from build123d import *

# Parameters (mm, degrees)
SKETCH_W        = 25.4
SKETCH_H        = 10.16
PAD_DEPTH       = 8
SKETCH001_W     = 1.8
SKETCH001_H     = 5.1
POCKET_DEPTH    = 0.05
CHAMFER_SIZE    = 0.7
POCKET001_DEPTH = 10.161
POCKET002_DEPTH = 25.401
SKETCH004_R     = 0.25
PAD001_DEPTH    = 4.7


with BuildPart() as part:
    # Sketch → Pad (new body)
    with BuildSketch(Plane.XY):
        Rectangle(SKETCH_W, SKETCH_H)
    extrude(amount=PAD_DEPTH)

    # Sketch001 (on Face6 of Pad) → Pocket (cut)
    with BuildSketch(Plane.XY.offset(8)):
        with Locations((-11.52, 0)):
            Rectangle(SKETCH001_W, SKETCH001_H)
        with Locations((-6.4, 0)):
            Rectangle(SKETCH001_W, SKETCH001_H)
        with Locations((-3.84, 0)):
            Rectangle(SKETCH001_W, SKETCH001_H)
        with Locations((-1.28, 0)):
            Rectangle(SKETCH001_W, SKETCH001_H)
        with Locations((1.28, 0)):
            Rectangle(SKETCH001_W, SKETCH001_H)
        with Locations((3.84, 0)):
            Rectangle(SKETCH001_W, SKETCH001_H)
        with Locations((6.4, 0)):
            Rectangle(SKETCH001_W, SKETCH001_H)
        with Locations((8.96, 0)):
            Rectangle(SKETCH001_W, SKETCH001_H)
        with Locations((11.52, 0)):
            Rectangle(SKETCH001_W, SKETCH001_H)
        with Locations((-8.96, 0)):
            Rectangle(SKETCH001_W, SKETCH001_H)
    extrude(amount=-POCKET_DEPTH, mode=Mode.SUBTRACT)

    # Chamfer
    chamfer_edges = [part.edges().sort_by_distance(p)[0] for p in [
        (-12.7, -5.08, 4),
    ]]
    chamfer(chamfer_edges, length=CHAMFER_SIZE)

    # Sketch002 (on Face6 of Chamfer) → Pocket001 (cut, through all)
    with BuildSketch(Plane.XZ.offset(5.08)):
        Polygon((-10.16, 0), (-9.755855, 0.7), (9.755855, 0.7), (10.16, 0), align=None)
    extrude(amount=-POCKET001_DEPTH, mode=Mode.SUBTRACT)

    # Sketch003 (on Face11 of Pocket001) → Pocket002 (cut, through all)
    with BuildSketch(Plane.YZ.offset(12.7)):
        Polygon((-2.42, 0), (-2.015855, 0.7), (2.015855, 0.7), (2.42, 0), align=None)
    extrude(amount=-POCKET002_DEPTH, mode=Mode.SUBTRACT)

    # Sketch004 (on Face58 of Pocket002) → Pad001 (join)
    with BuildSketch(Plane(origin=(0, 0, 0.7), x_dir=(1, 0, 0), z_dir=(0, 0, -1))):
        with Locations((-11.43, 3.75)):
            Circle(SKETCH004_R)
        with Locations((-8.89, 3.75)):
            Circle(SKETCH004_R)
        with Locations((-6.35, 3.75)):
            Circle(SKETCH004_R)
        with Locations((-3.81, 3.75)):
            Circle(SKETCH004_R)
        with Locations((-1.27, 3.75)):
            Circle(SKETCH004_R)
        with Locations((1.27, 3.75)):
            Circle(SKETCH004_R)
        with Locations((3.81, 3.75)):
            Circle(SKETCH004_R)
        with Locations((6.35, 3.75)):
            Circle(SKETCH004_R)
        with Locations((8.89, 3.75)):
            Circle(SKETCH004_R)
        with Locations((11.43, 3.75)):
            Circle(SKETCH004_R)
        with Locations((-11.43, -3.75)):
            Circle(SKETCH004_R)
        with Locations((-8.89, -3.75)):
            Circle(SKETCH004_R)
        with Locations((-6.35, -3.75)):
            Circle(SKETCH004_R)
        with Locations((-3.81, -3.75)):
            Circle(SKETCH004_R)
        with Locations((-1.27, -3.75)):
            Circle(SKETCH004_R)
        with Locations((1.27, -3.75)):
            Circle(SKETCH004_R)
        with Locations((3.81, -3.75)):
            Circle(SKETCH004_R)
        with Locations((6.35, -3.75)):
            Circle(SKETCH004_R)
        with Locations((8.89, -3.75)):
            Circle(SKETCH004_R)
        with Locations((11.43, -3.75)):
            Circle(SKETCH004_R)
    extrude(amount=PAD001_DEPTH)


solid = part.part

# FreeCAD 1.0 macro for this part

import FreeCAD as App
import Part
import Sketcher

V = App.Vector
Q = App.Units.Quantity


def edges_at(feature, points):
    """Names of the edges that pass closest to the given points."""
    edges = feature.Shape.Edges
    near = lambda p: min(range(len(edges)), key=lambda i: edges[i].distToShape(Part.Vertex(*p))[0])
    return sorted({f"Edge{near(p) + 1}" for p in points})


def add_polygon(sketch, points):
    """Adds a closed chain of lines whose ends are joined by coincident constraints."""
    first, n = sketch.GeometryCount, len(points)
    for a, b in zip(points, points[1:] + points[:1]):
        sketch.addGeometry(Part.LineSegment(App.Vector(*a, 0), App.Vector(*b, 0)), False)
    for i in range(n):
        sketch.addConstraint(Sketcher.Constraint("Coincident", first + i, 2, first + (i + 1) % n, 1))

doc = App.newDocument("Part")
params = doc.addObject("Spreadsheet::Sheet", "Params")
for row, (alias, value) in enumerate([
    ("sketch1_width", "25.4 mm"),
    ("sketch1_height", "10.16 mm"),
    ("pad1_length", "8 mm"),
    ("sketch2_width", "1.8 mm"),
    ("sketch2_height", "5.1 mm"),
    ("pocket1_length", "0.05 mm"),
    ("chamfer_size", "0.7 mm"),
    ("sketch3_width", "20.32 mm"),
    ("sketch4_width", "4.84 mm"),
    ("sketch5_diameter", "0.5 mm"),
    ("pad2_length", "4.7 mm"),
], start=1):
    params.set(f"A{row}", alias)
    params.set(f"B{row}", "=" + value)
    params.setAlias(f"B{row}", alias)

body = doc.addObject("PartDesign::Body", "Body")

# Sketch on XY plane
sketch1 = doc.addObject("Sketcher::SketchObject", "Sketch")
body.addObject(sketch1)
sketch1.AttachmentSupport = (doc.XY_Plane, [""])
sketch1.MapMode = "FlatFace"
add_polygon(sketch1, [(-13, 5), (-13, -5), (13, -5), (13, 5)])  # lines 0-3
sketch1.addConstraint(Sketcher.Constraint("Vertical", 0))
sketch1.addConstraint(Sketcher.Constraint("Horizontal", 1))
sketch1.addConstraint(Sketcher.Constraint("Vertical", 2))
sketch1.addConstraint(Sketcher.Constraint("Horizontal", 3))
sketch1.addConstraint(Sketcher.Constraint("Symmetric", 0, 2, 2, 2, -1, 1))
sketch1.addConstraint(Sketcher.Constraint("DistanceX", 1, 1, 1, 2, 25.4))
sketch1.addConstraint(Sketcher.Constraint("DistanceY", 0, 2, 0, 1, 10.16))
sketch1.setExpression("Constraints[9]", "Params.sketch1_width")
sketch1.setExpression("Constraints[10]", "Params.sketch1_height")
pad1 = doc.addObject("PartDesign::Pad", "Pad")
body.addObject(pad1)
pad1.Profile = sketch1
pad1.setExpression("Length", "Params.pad1_length")

# Sketch on XY plane
sketch2 = doc.addObject("Sketcher::SketchObject", "Sketch001")
body.addObject(sketch2)
sketch2.AttachmentSupport = (doc.XY_Plane, [""])
sketch2.MapMode = "FlatFace"
sketch2.AttachmentOffset = App.Placement(V(0, 0, 8), App.Rotation())
add_polygon(sketch2, [(-12.4, 2.5), (-12.4, -2.5), (-10.6, -2.5), (-10.6, 2.5)])  # lines 0-3
add_polygon(sketch2, [(-7.3, 2.5), (-7.3, -2.5), (-5.5, -2.5), (-5.5, 2.5)])  # lines 4-7
add_polygon(sketch2, [(-4.7, 2.5), (-4.7, -2.5), (-2.9, -2.5), (-2.9, 2.5)])  # lines 8-11
add_polygon(sketch2, [(-2.2, 2.5), (-2.2, -2.5), (-0.4, -2.5), (-0.4, 2.5)])  # lines 12-15
add_polygon(sketch2, [(0.4, 2.5), (0.4, -2.5), (2.2, -2.5), (2.2, 2.5)])  # lines 16-19
add_polygon(sketch2, [(2.9, 2.5), (2.9, -2.5), (4.7, -2.5), (4.7, 2.5)])  # lines 20-23
add_polygon(sketch2, [(5.5, 2.5), (5.5, -2.5), (7.3, -2.5), (7.3, 2.5)])  # lines 24-27
add_polygon(sketch2, [(8.1, 2.5), (8.1, -2.5), (9.9, -2.5), (9.9, 2.5)])  # lines 28-31
add_polygon(sketch2, [(10.6, 2.5), (10.6, -2.5), (12.4, -2.5), (12.4, 2.5)])  # lines 32-35
add_polygon(sketch2, [(-9.9, 2.5), (-9.9, -2.5), (-8.1, -2.5), (-8.1, 2.5)])  # lines 36-39
sketch2.addConstraint(Sketcher.Constraint("Vertical", 0))
sketch2.addConstraint(Sketcher.Constraint("Horizontal", 1))
sketch2.addConstraint(Sketcher.Constraint("Vertical", 2))
sketch2.addConstraint(Sketcher.Constraint("Horizontal", 3))
sketch2.addConstraint(Sketcher.Constraint("Vertical", 4))
sketch2.addConstraint(Sketcher.Constraint("Horizontal", 5))
sketch2.addConstraint(Sketcher.Constraint("Vertical", 6))
sketch2.addConstraint(Sketcher.Constraint("Horizontal", 7))
sketch2.addConstraint(Sketcher.Constraint("Vertical", 8))
sketch2.addConstraint(Sketcher.Constraint("Horizontal", 9))
sketch2.addConstraint(Sketcher.Constraint("Vertical", 10))
sketch2.addConstraint(Sketcher.Constraint("Horizontal", 11))
sketch2.addConstraint(Sketcher.Constraint("Vertical", 12))
sketch2.addConstraint(Sketcher.Constraint("Horizontal", 13))
sketch2.addConstraint(Sketcher.Constraint("Vertical", 14))
sketch2.addConstraint(Sketcher.Constraint("Horizontal", 15))
sketch2.addConstraint(Sketcher.Constraint("Vertical", 16))
sketch2.addConstraint(Sketcher.Constraint("Horizontal", 17))
sketch2.addConstraint(Sketcher.Constraint("Vertical", 18))
sketch2.addConstraint(Sketcher.Constraint("Horizontal", 19))
sketch2.addConstraint(Sketcher.Constraint("Vertical", 20))
sketch2.addConstraint(Sketcher.Constraint("Horizontal", 21))
sketch2.addConstraint(Sketcher.Constraint("Vertical", 22))
sketch2.addConstraint(Sketcher.Constraint("Horizontal", 23))
sketch2.addConstraint(Sketcher.Constraint("Vertical", 24))
sketch2.addConstraint(Sketcher.Constraint("Horizontal", 25))
sketch2.addConstraint(Sketcher.Constraint("Vertical", 26))
sketch2.addConstraint(Sketcher.Constraint("Horizontal", 27))
sketch2.addConstraint(Sketcher.Constraint("Vertical", 28))
sketch2.addConstraint(Sketcher.Constraint("Horizontal", 29))
sketch2.addConstraint(Sketcher.Constraint("Vertical", 30))
sketch2.addConstraint(Sketcher.Constraint("Horizontal", 31))
sketch2.addConstraint(Sketcher.Constraint("Vertical", 32))
sketch2.addConstraint(Sketcher.Constraint("Horizontal", 33))
sketch2.addConstraint(Sketcher.Constraint("Vertical", 34))
sketch2.addConstraint(Sketcher.Constraint("Horizontal", 35))
sketch2.addConstraint(Sketcher.Constraint("Vertical", 36))
sketch2.addConstraint(Sketcher.Constraint("Horizontal", 37))
sketch2.addConstraint(Sketcher.Constraint("Vertical", 38))
sketch2.addConstraint(Sketcher.Constraint("Horizontal", 39))
sketch2.addConstraint(Sketcher.Constraint("Symmetric", 14, 2, 16, 2, -1, 1))
sketch2.addConstraint(Sketcher.Constraint("Symmetric", 12, 2, 18, 2, -1, 1))
sketch2.addConstraint(Sketcher.Constraint("Symmetric", 10, 2, 20, 2, -1, 1))
sketch2.addConstraint(Sketcher.Constraint("Symmetric", 8, 2, 22, 2, -1, 1))
sketch2.addConstraint(Sketcher.Constraint("Symmetric", 6, 2, 24, 2, -1, 1))
sketch2.addConstraint(Sketcher.Constraint("Symmetric", 4, 2, 26, 2, -1, 1))
sketch2.addConstraint(Sketcher.Constraint("Symmetric", 2, 2, 32, 2, -1, 1))
sketch2.addConstraint(Sketcher.Constraint("Symmetric", 0, 2, 34, 2, -1, 1))
sketch2.addConstraint(Sketcher.Constraint("Symmetric", 30, 2, 36, 2, -1, 1))
sketch2.addConstraint(Sketcher.Constraint("Symmetric", 28, 2, 38, 2, -1, 1))
sketch2.addConstraint(Sketcher.Constraint("Horizontal", 1, 2, 4, 2))
sketch2.addConstraint(Sketcher.Constraint("Horizontal", 3, 2, 6, 2))
sketch2.addConstraint(Sketcher.Constraint("Horizontal", 5, 2, 8, 2))
sketch2.addConstraint(Sketcher.Constraint("Horizontal", 7, 2, 10, 2))
sketch2.addConstraint(Sketcher.Constraint("Horizontal", 9, 2, 12, 2))
sketch2.addConstraint(Sketcher.Constraint("Horizontal", 11, 2, 14, 2))
sketch2.addConstraint(Sketcher.Constraint("Horizontal", 13, 2, 16, 2))
sketch2.addConstraint(Sketcher.Constraint("Horizontal", 25, 2, 28, 2))
sketch2.addConstraint(Sketcher.Constraint("Horizontal", 27, 2, 30, 2))
sketch2.addConstraint(Sketcher.Constraint("Equal", 3, 5))
sketch2.addConstraint(Sketcher.Constraint("Equal", 7, 9))
sketch2.addConstraint(Sketcher.Constraint("Equal", 11, 13))
sketch2.addConstraint(Sketcher.Constraint("Equal", 27, 29))
sketch2.addConstraint(Sketcher.Constraint("DistanceX", 1, 1, 1, 2, 1.8))
sketch2.addConstraint(Sketcher.Constraint("DistanceY", 0, 2, 0, 1, 5.1))
sketch2.addConstraint(Sketcher.Constraint("DistanceX", 4, 2, -1, 1, 7.3))
sketch2.addConstraint(Sketcher.Constraint("DistanceX", 0, 2, -1, 1, 12.42))
sketch2.addConstraint(Sketcher.Constraint("DistanceX", 8, 2, -1, 1, 4.74))
sketch2.addConstraint(Sketcher.Constraint("DistanceX", 12, 2, -1, 1, 2.18))
sketch2.addConstraint(Sketcher.Constraint("DistanceX", -1, 1, 28, 2, 8.06))
sketch2.setExpression("Constraints[103]", "Params.sketch2_width")
sketch2.setExpression("Constraints[104]", "Params.sketch2_height")
pocket1 = doc.addObject("PartDesign::Pocket", "Pocket")
body.addObject(pocket1)
pocket1.Profile = sketch2
pocket1.setExpression("Length", "Params.pocket1_length")
doc.recompute()

chamfer = doc.addObject("PartDesign::Chamfer", "Chamfer")
body.addObject(chamfer)
chamfer.Base = (pocket1, edges_at(pocket1, [(-12.7, -5.08, 4)]))
chamfer.setExpression("Size", "Params.chamfer_size")

# Sketch on XZ plane
sketch3 = doc.addObject("Sketcher::SketchObject", "Sketch002")
body.addObject(sketch3)
sketch3.AttachmentSupport = (doc.XZ_Plane, [""])
sketch3.MapMode = "FlatFace"
sketch3.AttachmentOffset = App.Placement(V(0, 0, 5.08), App.Rotation())
add_polygon(sketch3, [(-9.8, 0.7), (-10.2, 0), (10.2, 0), (9.8, 0.7)])  # lines 0-3
sketch3.addConstraint(Sketcher.Constraint("Horizontal", 1))
sketch3.addConstraint(Sketcher.Constraint("Horizontal", 3))
sketch3.addConstraint(Sketcher.Constraint("Symmetric", 0, 2, 1, 2, -1, 1))
sketch3.addConstraint(Sketcher.Constraint("Equal", 0, 2))
sketch3.addConstraint(Sketcher.Constraint("Angle", 0, Q("-119.999988 deg")))
sketch3.addConstraint(Sketcher.Constraint("DistanceX", 1, 1, 1, 2, 20.32))
sketch3.addConstraint(Sketcher.Constraint("DistanceY", -1, 1, 2, 2, 0.7))
sketch3.setExpression("Constraints[9]", "Params.sketch3_width")
pocket2 = doc.addObject("PartDesign::Pocket", "Pocket001")
body.addObject(pocket2)
pocket2.Profile = sketch3
pocket2.Type = "ThroughAll"

# Sketch on YZ plane
sketch4 = doc.addObject("Sketcher::SketchObject", "Sketch003")
body.addObject(sketch4)
sketch4.AttachmentSupport = (doc.YZ_Plane, [""])
sketch4.MapMode = "FlatFace"
sketch4.AttachmentOffset = App.Placement(V(0, 0, 12.7), App.Rotation())
add_polygon(sketch4, [(-2, 0.7), (-2.4, 0), (2.4, 0), (2, 0.7)])  # lines 0-3
sketch4.addConstraint(Sketcher.Constraint("Horizontal", 1))
sketch4.addConstraint(Sketcher.Constraint("Horizontal", 3))
sketch4.addConstraint(Sketcher.Constraint("Symmetric", 0, 2, 1, 2, -1, 1))
sketch4.addConstraint(Sketcher.Constraint("Equal", 0, 2))
sketch4.addConstraint(Sketcher.Constraint("Angle", 0, Q("-119.999988 deg")))
sketch4.addConstraint(Sketcher.Constraint("DistanceX", 1, 1, 1, 2, 4.84))
sketch4.addConstraint(Sketcher.Constraint("DistanceY", -1, 1, 2, 2, 0.7))
sketch4.setExpression("Constraints[9]", "Params.sketch4_width")
pocket3 = doc.addObject("PartDesign::Pocket", "Pocket002")
body.addObject(pocket3)
pocket3.Profile = sketch4
pocket3.Type = "ThroughAll"

# Sketch on XY plane
sketch5 = doc.addObject("Sketcher::SketchObject", "Sketch004")
body.addObject(sketch5)
sketch5.AttachmentSupport = (doc.XY_Plane, [""])
sketch5.MapMode = "FlatFace"
sketch5.AttachmentOffset = App.Placement(V(0, 0, 0.7), App.Rotation())
sketch5.addGeometry(Part.Circle(V(-11.43, -3.75, 0), V(0, 0, 1), 0.25), False)
sketch5.addGeometry(Part.Circle(V(-8.89, -3.75, 0), V(0, 0, 1), 0.25), False)
sketch5.addGeometry(Part.Circle(V(-6.35, -3.75, 0), V(0, 0, 1), 0.25), False)
sketch5.addGeometry(Part.Circle(V(-3.81, -3.75, 0), V(0, 0, 1), 0.25), False)
sketch5.addGeometry(Part.Circle(V(-1.27, -3.75, 0), V(0, 0, 1), 0.25), False)
sketch5.addGeometry(Part.Circle(V(1.27, -3.75, 0), V(0, 0, 1), 0.25), False)
sketch5.addGeometry(Part.Circle(V(3.81, -3.75, 0), V(0, 0, 1), 0.25), False)
sketch5.addGeometry(Part.Circle(V(6.35, -3.75, 0), V(0, 0, 1), 0.25), False)
sketch5.addGeometry(Part.Circle(V(8.89, -3.75, 0), V(0, 0, 1), 0.25), False)
sketch5.addGeometry(Part.Circle(V(11.43, -3.75, 0), V(0, 0, 1), 0.25), False)
sketch5.addGeometry(Part.Circle(V(-11.43, 3.75, 0), V(0, 0, 1), 0.25), False)
sketch5.addGeometry(Part.Circle(V(-8.89, 3.75, 0), V(0, 0, 1), 0.25), False)
sketch5.addGeometry(Part.Circle(V(-6.35, 3.75, 0), V(0, 0, 1), 0.25), False)
sketch5.addGeometry(Part.Circle(V(-3.81, 3.75, 0), V(0, 0, 1), 0.25), False)
sketch5.addGeometry(Part.Circle(V(-1.27, 3.75, 0), V(0, 0, 1), 0.25), False)
sketch5.addGeometry(Part.Circle(V(1.27, 3.75, 0), V(0, 0, 1), 0.25), False)
sketch5.addGeometry(Part.Circle(V(3.81, 3.75, 0), V(0, 0, 1), 0.25), False)
sketch5.addGeometry(Part.Circle(V(6.35, 3.75, 0), V(0, 0, 1), 0.25), False)
sketch5.addGeometry(Part.Circle(V(8.89, 3.75, 0), V(0, 0, 1), 0.25), False)
sketch5.addGeometry(Part.Circle(V(11.43, 3.75, 0), V(0, 0, 1), 0.25), False)
sketch5.addConstraint(Sketcher.Constraint("Equal", 0, 1))
sketch5.addConstraint(Sketcher.Constraint("Equal", 1, 2))
sketch5.addConstraint(Sketcher.Constraint("Equal", 2, 3))
sketch5.addConstraint(Sketcher.Constraint("Equal", 3, 4))
sketch5.addConstraint(Sketcher.Constraint("Equal", 4, 5))
sketch5.addConstraint(Sketcher.Constraint("Equal", 5, 6))
sketch5.addConstraint(Sketcher.Constraint("Equal", 6, 7))
sketch5.addConstraint(Sketcher.Constraint("Equal", 7, 8))
sketch5.addConstraint(Sketcher.Constraint("Equal", 8, 9))
sketch5.addConstraint(Sketcher.Constraint("Equal", 9, 10))
sketch5.addConstraint(Sketcher.Constraint("Equal", 10, 11))
sketch5.addConstraint(Sketcher.Constraint("Equal", 11, 12))
sketch5.addConstraint(Sketcher.Constraint("Equal", 12, 13))
sketch5.addConstraint(Sketcher.Constraint("Equal", 13, 14))
sketch5.addConstraint(Sketcher.Constraint("Equal", 14, 15))
sketch5.addConstraint(Sketcher.Constraint("Equal", 15, 16))
sketch5.addConstraint(Sketcher.Constraint("Equal", 16, 17))
sketch5.addConstraint(Sketcher.Constraint("Equal", 17, 18))
sketch5.addConstraint(Sketcher.Constraint("Equal", 18, 19))
sketch5.addConstraint(Sketcher.Constraint("Symmetric", 9, 3, 10, 3, -1, 1))
sketch5.addConstraint(Sketcher.Constraint("Symmetric", 8, 3, 11, 3, -1, 1))
sketch5.addConstraint(Sketcher.Constraint("Symmetric", 7, 3, 12, 3, -1, 1))
sketch5.addConstraint(Sketcher.Constraint("Symmetric", 6, 3, 13, 3, -1, 1))
sketch5.addConstraint(Sketcher.Constraint("Symmetric", 5, 3, 14, 3, -1, 1))
sketch5.addConstraint(Sketcher.Constraint("Symmetric", 4, 3, 15, 3, -1, 1))
sketch5.addConstraint(Sketcher.Constraint("Symmetric", 3, 3, 16, 3, -1, 1))
sketch5.addConstraint(Sketcher.Constraint("Symmetric", 2, 3, 17, 3, -1, 1))
sketch5.addConstraint(Sketcher.Constraint("Symmetric", 1, 3, 18, 3, -1, 1))
sketch5.addConstraint(Sketcher.Constraint("Symmetric", 0, 3, 19, 3, -1, 1))
sketch5.addConstraint(Sketcher.Constraint("Symmetric", 4, 3, 5, 3, -2))
sketch5.addConstraint(Sketcher.Constraint("Symmetric", 3, 3, 6, 3, -2))
sketch5.addConstraint(Sketcher.Constraint("Symmetric", 2, 3, 7, 3, -2))
sketch5.addConstraint(Sketcher.Constraint("Symmetric", 1, 3, 8, 3, -2))
sketch5.addConstraint(Sketcher.Constraint("Symmetric", 0, 3, 9, 3, -2))
sketch5.addConstraint(Sketcher.Constraint("Horizontal", 0, 3, 1, 3))
sketch5.addConstraint(Sketcher.Constraint("Horizontal", 1, 3, 2, 3))
sketch5.addConstraint(Sketcher.Constraint("Horizontal", 2, 3, 3, 3))
sketch5.addConstraint(Sketcher.Constraint("Horizontal", 3, 3, 4, 3))
sketch5.addConstraint(Sketcher.Constraint("Diameter", 0, 0.5))
sketch5.addConstraint(Sketcher.Constraint("DistanceX", 0, 3, 5, 3, 12.7))
sketch5.addConstraint(Sketcher.Constraint("DistanceX", 1, 3, 6, 3, 12.7))
sketch5.addConstraint(Sketcher.Constraint("DistanceX", 2, 3, 7, 3, 12.7))
sketch5.addConstraint(Sketcher.Constraint("DistanceY", 0, 3, 10, 3, 7.5))
sketch5.addConstraint(Sketcher.Constraint("DistanceX", 0, 3, -1, 1, 11.43))
sketch5.addConstraint(Sketcher.Constraint("DistanceX", 1, 3, -1, 1, 8.89))
sketch5.setExpression("Constraints[38]", "Params.sketch5_diameter")
pad2 = doc.addObject("PartDesign::Pad", "Pad001")
body.addObject(pad2)
pad2.Profile = sketch5
pad2.setExpression("Length", "Params.pad2_length")
pad2.Reversed = True

doc.recompute()
